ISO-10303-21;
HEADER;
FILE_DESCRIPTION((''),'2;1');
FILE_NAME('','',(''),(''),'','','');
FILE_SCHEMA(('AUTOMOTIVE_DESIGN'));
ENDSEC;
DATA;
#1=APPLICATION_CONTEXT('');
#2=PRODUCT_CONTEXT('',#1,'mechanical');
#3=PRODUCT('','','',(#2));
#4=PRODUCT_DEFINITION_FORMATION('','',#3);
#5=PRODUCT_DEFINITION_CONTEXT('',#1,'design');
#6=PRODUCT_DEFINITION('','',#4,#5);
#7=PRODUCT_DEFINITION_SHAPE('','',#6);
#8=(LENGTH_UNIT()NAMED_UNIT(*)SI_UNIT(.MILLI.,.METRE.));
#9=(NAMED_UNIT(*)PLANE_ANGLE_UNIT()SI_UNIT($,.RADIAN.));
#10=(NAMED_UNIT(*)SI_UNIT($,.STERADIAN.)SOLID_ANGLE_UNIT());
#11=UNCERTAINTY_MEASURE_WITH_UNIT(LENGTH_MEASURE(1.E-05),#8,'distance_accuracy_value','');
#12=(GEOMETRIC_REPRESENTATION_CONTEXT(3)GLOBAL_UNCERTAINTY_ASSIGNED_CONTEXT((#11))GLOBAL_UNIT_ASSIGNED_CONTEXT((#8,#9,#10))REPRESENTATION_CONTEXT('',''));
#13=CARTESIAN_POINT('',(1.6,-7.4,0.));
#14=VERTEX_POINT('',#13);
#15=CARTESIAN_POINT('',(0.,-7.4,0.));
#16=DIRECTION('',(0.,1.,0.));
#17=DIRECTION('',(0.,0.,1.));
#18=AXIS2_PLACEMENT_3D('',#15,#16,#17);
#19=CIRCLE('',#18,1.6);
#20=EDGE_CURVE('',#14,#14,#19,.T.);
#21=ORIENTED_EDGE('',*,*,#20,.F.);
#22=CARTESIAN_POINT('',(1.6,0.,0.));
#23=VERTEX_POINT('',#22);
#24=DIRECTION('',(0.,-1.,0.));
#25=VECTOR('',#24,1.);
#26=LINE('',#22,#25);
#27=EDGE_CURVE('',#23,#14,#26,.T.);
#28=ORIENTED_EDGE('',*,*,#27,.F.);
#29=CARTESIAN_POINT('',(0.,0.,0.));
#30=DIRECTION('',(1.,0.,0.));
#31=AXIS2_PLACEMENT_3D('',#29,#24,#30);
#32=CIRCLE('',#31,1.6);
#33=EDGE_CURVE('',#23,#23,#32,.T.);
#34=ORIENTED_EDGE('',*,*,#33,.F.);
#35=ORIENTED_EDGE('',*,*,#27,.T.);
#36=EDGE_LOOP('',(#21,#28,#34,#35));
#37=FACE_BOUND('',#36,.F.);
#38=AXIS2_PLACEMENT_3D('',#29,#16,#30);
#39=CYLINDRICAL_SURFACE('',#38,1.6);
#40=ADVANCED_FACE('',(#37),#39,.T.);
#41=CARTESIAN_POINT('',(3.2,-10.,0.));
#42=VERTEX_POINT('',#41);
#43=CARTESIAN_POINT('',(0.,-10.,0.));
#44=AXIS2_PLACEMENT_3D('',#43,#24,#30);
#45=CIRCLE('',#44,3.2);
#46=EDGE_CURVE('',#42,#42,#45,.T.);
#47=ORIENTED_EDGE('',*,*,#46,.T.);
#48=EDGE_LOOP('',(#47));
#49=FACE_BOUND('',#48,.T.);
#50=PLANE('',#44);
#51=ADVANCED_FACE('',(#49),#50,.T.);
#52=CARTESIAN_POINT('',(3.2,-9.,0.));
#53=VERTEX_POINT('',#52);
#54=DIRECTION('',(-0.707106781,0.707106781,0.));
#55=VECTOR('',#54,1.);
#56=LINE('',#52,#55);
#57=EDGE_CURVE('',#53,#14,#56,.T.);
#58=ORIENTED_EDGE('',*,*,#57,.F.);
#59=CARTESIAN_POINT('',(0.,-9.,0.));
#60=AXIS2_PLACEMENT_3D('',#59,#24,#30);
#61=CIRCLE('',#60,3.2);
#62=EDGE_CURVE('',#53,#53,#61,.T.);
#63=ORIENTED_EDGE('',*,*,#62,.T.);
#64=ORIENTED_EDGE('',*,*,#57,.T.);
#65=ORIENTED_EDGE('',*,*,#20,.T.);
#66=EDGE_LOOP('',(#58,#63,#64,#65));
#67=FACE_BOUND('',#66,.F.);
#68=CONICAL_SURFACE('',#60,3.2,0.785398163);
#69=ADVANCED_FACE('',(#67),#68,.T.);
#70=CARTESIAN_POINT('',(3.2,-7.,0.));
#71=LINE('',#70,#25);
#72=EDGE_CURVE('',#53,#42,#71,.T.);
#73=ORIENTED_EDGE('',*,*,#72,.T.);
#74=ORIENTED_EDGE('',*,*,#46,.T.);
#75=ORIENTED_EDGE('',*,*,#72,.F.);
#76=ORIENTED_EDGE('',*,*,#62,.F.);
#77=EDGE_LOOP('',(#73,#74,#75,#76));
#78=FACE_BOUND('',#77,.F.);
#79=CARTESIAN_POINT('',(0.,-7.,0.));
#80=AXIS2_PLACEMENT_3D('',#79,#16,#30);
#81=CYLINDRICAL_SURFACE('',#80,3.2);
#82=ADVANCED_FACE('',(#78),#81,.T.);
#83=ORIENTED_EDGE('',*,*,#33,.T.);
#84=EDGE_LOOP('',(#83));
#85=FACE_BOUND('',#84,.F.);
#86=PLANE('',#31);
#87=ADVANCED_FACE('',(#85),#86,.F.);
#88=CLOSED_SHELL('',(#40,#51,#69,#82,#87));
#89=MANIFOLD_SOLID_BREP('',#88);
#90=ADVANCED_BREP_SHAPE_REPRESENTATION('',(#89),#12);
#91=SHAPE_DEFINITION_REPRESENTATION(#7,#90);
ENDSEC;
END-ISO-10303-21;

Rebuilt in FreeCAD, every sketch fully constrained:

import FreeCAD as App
import Part
import Sketcher
from FreeCAD import Vector


def edges_at(feature, points):
    """Names of the edges that pass closest to the given points."""
    edges = feature.Shape.Edges
    near = lambda p: min(range(len(edges)), key=lambda i: edges[i].distToShape(Part.Vertex(*p))[0])
    return sorted({f"Edge{near(p) + 1}" for p in points})

doc = App.newDocument("Part")
body = doc.addObject("PartDesign::Body", "Body")

sketch1 = body.newObject("Sketcher::SketchObject", "Sketch")
sketch1.AttachmentSupport = (doc.getObject("XZ_Plane"), [""])
sketch1.MapMode = "FlatFace"
sketch1.addGeometry(Part.Circle(Vector(0, 0, 0), Vector(0, 0, 1), 1.6), False)
sketch1.addConstraint(Sketcher.Constraint("Coincident", 0, 3, -1, 1))
sketch1.addConstraint(Sketcher.Constraint("Diameter", 0, 3.2))
pad1 = body.newObject("PartDesign::Pad", "Pad")
pad1.Profile = sketch1
pad1.Length = 10
body2 = doc.addObject("PartDesign::Body", "Body001")

sketch2 = body2.newObject("Sketcher::SketchObject", "Sketch001")
sketch2.AttachmentSupport = (doc.getObject("XZ_Plane001"), [""])
sketch2.MapMode = "FlatFace"
sketch2.addGeometry(Part.Circle(Vector(0, 0, 0), Vector(0, 0, 1), 3.2), False)
sketch2.addConstraint(Sketcher.Constraint("Coincident", 0, 3, -1, 1))
sketch2.addConstraint(Sketcher.Constraint("Diameter", 0, 6.4))
pad2 = body2.newObject("PartDesign::Pad", "Pad001")
pad2.Profile = sketch2
pad2.Length = 3
doc.recompute()

chamfer = body2.newObject("PartDesign::Chamfer", "Chamfer")
chamfer.Base = (pad2, edges_at(pad2, [(-3.2, 0, 0)]))
chamfer.Size = 2
body3 = doc.addObject("PartDesign::Body", "Body002")
doc.recompute()

body2.Placement = App.Placement(Vector(0, -7, 0), App.Rotation(Vector(0, 0, 1), 0))
boolean = body3.newObject("PartDesign::Boolean", "Boolean")
boolean.Type = "Fuse"
boolean.addObjects([body2])
doc.recompute()

boolean2 = body3.newObject("PartDesign::Boolean", "Boolean001")
boolean2.Type = "Fuse"
boolean2.addObjects([body])

doc.recompute()
